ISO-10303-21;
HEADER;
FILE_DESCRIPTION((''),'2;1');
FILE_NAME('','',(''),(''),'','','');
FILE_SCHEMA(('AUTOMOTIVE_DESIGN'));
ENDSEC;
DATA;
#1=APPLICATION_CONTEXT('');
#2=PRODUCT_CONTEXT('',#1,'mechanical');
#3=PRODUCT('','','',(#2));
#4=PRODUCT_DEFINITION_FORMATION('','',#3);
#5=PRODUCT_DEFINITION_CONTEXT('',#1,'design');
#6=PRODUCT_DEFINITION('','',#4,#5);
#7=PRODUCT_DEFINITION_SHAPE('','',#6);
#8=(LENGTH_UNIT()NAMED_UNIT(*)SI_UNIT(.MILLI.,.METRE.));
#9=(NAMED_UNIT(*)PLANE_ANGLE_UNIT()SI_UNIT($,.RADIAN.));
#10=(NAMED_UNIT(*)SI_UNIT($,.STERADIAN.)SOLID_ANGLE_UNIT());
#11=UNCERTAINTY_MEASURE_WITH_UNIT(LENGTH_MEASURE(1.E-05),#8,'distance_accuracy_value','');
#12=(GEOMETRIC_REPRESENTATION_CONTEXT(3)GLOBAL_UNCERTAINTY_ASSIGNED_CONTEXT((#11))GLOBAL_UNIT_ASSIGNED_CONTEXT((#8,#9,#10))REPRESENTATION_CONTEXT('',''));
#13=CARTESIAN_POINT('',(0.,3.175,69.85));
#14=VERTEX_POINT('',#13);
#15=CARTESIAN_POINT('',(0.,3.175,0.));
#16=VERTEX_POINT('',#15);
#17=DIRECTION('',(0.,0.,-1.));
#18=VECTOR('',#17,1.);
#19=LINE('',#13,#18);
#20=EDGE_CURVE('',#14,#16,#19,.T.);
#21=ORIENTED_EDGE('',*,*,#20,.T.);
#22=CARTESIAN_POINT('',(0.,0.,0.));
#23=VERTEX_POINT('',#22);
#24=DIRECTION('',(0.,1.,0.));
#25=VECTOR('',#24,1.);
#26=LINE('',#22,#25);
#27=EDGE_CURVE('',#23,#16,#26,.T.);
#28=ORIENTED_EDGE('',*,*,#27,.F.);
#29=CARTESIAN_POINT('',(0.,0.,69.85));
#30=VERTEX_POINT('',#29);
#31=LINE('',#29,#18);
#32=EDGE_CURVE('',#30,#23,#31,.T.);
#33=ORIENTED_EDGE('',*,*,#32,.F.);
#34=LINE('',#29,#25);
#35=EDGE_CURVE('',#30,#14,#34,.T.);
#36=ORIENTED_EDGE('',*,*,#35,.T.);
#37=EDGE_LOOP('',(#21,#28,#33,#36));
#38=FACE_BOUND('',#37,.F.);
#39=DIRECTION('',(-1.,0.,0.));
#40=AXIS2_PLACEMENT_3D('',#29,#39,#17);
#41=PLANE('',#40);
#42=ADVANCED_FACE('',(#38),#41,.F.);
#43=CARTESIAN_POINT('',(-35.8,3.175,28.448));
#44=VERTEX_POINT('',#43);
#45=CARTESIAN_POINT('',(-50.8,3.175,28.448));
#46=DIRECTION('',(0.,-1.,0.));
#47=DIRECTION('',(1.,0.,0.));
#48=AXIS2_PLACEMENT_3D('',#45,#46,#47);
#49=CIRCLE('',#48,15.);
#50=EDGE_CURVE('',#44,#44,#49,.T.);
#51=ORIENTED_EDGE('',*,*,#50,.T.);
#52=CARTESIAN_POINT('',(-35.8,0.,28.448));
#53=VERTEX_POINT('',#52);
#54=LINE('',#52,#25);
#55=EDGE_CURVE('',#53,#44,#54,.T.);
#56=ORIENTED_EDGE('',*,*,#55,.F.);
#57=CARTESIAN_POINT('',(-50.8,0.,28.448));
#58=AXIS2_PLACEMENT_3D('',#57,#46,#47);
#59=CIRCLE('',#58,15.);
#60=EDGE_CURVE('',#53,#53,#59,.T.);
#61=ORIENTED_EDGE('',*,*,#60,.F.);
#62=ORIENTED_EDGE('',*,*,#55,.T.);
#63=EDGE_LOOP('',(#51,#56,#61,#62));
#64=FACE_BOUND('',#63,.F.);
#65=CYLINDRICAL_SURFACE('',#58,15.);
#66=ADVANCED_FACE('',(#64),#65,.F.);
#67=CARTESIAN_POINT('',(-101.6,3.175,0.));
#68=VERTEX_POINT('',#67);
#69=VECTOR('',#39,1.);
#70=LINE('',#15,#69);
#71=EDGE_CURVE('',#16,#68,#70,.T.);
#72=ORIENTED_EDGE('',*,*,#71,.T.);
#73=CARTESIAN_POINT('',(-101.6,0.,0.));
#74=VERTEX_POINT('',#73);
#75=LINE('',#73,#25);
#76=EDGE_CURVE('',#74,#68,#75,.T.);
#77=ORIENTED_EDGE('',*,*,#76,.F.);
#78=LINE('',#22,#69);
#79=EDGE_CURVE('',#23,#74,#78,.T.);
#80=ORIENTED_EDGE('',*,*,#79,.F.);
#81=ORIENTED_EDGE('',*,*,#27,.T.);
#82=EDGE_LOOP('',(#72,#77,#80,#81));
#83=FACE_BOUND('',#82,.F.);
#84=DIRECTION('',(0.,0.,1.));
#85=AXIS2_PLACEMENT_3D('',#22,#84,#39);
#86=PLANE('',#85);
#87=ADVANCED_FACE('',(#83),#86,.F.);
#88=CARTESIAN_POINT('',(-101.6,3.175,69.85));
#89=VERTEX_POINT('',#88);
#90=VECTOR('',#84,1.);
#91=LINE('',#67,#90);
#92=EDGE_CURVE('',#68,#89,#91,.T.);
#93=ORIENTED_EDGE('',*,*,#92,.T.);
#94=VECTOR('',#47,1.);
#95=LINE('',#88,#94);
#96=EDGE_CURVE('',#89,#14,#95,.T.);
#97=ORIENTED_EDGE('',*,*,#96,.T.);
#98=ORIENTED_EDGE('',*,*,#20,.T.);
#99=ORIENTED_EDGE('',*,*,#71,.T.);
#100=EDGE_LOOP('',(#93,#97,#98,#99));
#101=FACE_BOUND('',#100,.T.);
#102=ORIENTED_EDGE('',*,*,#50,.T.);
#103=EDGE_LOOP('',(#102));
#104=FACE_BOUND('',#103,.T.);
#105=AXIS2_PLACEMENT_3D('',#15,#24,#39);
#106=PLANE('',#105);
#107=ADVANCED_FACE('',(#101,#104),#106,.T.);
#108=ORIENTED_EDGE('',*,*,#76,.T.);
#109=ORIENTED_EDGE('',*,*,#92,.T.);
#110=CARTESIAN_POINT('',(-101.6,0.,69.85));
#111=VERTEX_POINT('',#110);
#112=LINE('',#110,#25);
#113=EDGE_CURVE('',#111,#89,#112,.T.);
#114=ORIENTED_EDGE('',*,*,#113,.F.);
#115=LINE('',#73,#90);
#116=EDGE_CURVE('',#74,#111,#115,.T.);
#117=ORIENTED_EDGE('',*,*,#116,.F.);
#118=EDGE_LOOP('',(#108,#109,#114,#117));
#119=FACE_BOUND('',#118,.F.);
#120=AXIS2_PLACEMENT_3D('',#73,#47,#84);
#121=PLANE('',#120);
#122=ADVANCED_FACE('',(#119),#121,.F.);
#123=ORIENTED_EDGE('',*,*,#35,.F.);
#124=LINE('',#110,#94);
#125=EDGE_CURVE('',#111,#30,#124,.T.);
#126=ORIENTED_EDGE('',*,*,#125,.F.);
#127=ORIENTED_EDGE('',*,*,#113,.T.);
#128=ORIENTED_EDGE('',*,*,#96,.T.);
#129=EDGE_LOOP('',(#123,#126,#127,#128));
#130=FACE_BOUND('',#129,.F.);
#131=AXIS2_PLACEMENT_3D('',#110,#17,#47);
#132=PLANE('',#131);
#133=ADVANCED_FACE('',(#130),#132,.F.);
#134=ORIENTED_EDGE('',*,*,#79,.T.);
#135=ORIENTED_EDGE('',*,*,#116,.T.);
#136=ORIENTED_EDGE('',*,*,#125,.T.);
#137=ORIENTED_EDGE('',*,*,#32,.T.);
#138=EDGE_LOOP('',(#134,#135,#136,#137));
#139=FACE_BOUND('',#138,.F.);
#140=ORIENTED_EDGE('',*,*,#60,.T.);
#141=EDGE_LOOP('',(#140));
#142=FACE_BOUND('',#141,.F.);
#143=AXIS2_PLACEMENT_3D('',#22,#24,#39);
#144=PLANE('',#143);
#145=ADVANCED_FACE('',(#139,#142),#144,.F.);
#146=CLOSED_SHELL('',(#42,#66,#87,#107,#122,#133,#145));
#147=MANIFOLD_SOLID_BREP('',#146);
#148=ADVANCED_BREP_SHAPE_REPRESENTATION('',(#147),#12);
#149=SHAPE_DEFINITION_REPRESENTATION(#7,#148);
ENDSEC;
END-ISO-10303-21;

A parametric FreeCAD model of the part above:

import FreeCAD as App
import Part
import Sketcher

V = App.Vector
Q = App.Units.Quantity

doc = App.newDocument("Part")
body = doc.addObject("PartDesign::Body", "Body")

# Sketch on XZ plane
sketch1 = body.newObject("Sketcher::SketchObject", "Sketch")
sketch1.AttachmentSupport = (doc.getObject("XZ_Plane"), [""])
sketch1.MapMode = "FlatFace"
sketch1.addGeometry([
    Part.LineSegment(V(0, 70, 0), V(0, 0, 0)),
    Part.LineSegment(V(0, 0, 0), V(-102, 0, 0)),
    Part.LineSegment(V(-102, 0, 0), V(-102, 70, 0)),
    Part.LineSegment(V(-102, 70, 0), V(0, 70, 0)),
], False)
sketch1.addConstraint([
    Sketcher.Constraint("Coincident", 0, 2, 1, 1),
    Sketcher.Constraint("Coincident", 1, 2, 2, 1),
    Sketcher.Constraint("Coincident", 2, 2, 3, 1),
    Sketcher.Constraint("Coincident", 3, 2, 0, 1),
    Sketcher.Constraint("Vertical", 0),
    Sketcher.Constraint("Horizontal", 1),
    Sketcher.Constraint("Vertical", 2),
    Sketcher.Constraint("Horizontal", 3),
    Sketcher.Constraint("Coincident", 0, 2, -1, 1),
    Sketcher.Constraint("DistanceX", 1, 2, 1, 1, Q("4 in")),
    Sketcher.Constraint("DistanceY", 0, 2, 0, 1, Q("2.75 in")),
])
pad1 = body.newObject("PartDesign::Pad", "Pad")
pad1.Profile = sketch1
pad1.Length = Q("0.125 in")
pad1.Reversed = True

# Sketch on XZ plane
sketch2 = body.newObject("Sketcher::SketchObject", "Sketch001")
sketch2.AttachmentSupport = (doc.getObject("XZ_Plane"), [""])
sketch2.MapMode = "FlatFace"
sketch2.addGeometry(Part.Circle(V(-51, 28, 0), V(0, 0, 1), 15), False)
sketch2.addConstraint([
    Sketcher.Constraint("DistanceX", 0, 3, -1, 1, Q("2 in")),
    Sketcher.Constraint("Diameter", 0, Q("1.1811 in")),
    Sketcher.Constraint("DistanceY", -1, 1, 0, 3, Q("1.12 in")),
])
pocket1 = body.newObject("PartDesign::Pocket", "Pocket")
pocket1.Profile = sketch2
pocket1.Type = "ThroughAll"

doc.recompute()
